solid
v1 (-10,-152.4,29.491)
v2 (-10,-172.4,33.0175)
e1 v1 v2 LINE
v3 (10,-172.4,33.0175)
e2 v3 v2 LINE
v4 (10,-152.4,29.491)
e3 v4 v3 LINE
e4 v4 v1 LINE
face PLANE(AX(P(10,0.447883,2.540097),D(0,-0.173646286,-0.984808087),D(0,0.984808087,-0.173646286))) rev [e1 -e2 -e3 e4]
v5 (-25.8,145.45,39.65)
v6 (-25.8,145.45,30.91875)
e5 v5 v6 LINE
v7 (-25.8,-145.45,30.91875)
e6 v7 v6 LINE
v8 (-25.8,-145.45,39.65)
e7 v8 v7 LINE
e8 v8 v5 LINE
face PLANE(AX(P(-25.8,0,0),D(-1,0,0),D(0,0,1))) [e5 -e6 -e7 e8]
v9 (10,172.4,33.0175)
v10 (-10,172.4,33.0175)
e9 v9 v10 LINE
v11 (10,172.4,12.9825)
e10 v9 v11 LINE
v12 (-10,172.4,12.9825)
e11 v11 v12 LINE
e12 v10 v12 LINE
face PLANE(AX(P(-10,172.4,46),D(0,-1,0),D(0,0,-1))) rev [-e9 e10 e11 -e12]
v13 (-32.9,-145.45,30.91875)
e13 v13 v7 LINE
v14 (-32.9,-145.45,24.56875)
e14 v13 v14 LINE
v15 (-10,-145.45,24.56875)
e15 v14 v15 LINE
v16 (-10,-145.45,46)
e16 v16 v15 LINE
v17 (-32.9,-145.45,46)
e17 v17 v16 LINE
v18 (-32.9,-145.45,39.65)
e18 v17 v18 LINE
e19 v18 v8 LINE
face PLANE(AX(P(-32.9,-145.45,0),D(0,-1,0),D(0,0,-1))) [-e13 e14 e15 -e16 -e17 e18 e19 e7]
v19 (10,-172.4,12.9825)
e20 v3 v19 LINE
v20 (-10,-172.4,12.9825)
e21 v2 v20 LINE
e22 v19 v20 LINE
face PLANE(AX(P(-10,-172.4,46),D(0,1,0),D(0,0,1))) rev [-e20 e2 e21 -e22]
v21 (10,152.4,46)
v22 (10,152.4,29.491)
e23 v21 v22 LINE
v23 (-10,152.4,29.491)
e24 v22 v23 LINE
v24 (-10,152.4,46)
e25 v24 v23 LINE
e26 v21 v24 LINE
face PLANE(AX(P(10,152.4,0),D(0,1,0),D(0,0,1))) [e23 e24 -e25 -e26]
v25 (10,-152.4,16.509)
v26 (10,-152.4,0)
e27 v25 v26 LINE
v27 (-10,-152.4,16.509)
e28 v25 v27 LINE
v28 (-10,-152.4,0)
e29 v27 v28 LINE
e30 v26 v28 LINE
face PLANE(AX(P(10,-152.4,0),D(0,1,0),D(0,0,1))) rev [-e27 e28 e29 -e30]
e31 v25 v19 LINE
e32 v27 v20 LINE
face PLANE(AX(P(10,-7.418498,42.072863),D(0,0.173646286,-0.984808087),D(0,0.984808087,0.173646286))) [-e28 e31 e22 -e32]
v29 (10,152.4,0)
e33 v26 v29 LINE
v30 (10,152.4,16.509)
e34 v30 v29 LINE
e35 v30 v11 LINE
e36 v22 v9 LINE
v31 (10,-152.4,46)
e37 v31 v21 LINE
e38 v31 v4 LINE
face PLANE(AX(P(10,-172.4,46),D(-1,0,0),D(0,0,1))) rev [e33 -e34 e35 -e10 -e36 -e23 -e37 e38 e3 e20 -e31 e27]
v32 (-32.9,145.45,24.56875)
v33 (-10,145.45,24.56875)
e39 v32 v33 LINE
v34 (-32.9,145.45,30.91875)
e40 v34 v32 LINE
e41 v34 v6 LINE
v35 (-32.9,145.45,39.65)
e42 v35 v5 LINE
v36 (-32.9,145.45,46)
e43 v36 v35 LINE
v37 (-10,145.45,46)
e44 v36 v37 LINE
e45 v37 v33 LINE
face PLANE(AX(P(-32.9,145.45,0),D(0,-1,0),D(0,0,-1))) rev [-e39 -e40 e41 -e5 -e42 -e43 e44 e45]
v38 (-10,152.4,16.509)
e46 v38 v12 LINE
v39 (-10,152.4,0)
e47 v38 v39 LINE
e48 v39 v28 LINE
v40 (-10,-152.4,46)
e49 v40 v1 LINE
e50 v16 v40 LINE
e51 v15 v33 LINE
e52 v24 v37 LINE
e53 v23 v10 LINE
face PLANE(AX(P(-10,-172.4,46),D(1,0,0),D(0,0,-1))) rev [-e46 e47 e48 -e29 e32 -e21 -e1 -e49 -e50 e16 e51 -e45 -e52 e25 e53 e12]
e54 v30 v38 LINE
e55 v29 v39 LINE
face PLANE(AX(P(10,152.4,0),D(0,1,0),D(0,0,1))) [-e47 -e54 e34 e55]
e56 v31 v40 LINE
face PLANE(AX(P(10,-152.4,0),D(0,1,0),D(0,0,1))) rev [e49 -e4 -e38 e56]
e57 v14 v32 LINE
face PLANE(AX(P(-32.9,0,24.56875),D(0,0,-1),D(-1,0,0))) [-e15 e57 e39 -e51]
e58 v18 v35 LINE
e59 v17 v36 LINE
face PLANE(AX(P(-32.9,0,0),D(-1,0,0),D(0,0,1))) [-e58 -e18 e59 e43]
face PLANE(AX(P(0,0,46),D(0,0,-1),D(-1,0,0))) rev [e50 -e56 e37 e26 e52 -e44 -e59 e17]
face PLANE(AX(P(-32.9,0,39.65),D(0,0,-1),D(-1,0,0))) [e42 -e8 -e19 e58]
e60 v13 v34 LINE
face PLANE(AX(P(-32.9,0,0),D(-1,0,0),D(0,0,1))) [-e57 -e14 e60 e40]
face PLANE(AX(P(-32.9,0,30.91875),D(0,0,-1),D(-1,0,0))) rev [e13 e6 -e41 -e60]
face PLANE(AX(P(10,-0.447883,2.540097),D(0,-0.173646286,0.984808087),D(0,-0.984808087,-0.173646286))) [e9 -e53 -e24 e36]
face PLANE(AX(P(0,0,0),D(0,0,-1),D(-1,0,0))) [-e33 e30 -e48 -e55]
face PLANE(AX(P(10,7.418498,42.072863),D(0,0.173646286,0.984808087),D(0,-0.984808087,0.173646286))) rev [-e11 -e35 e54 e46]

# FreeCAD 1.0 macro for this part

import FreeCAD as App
import Part
import Sketcher

V = App.Vector
Q = App.Units.Quantity


def add_polygon(sketch, points):
    """Adds a closed chain of lines whose ends are joined by coincident constraints."""
    first, n = sketch.GeometryCount, len(points)
    for a, b in zip(points, points[1:] + points[:1]):
        sketch.addGeometry(Part.LineSegment(App.Vector(*a, 0), App.Vector(*b, 0)), False)
    for i in range(n):
        sketch.addConstraint(Sketcher.Constraint("Coincident", first + i, 2, first + (i + 1) % n, 1))

doc = App.newDocument("Part")
body = doc.addObject("PartDesign::Body", "Body")

sketch1 = doc.addObject("Sketcher::SketchObject", "Sketch")
body.addObject(sketch1)
sketch1.AttachmentSupport = (doc.XY_Plane, [""])
sketch1.MapMode = "FlatFace"
add_polygon(sketch1, [(-10, 172), (-10, -172), (10, -172), (10, 172)])
sketch1.addConstraint([
    Sketcher.Constraint("Vertical", 0),
    Sketcher.Constraint("Horizontal", 1),
    Sketcher.Constraint("Vertical", 2),
    Sketcher.Constraint("Horizontal", 3),
    Sketcher.Constraint("Symmetric", 0, 2, 2, 2, -1, 1),
    Sketcher.Constraint("DistanceX", 1, 1, 1, 2, Q("20 mm")),
    Sketcher.Constraint("DistanceY", 0, 2, 0, 1, Q("344.8 mm")),
])
pad1 = doc.addObject("PartDesign::Pad", "Pad")
body.addObject(pad1)
pad1.Profile = sketch1
pad1.Length = 46

sketch2 = doc.addObject("Sketcher::SketchObject", "Sketch001")
body.addObject(sketch2)
sketch2.AttachmentSupport = (doc.YZ_Plane, [""])
sketch2.MapMode = "FlatFace"
sketch2.AttachmentOffset = App.Placement(V(0, 0, -10), App.Rotation())
add_polygon(sketch2, [(145, 40), (-145, 40), (-145, 46), (145, 46)])
add_polygon(sketch2, [(145, 25), (-145, 25), (-145, 31), (145, 31)])
sketch2.addConstraint([
    Sketcher.Constraint("Horizontal", 0),
    Sketcher.Constraint("Vertical", 1),
    Sketcher.Constraint("Horizontal", 2),
    Sketcher.Constraint("Vertical", 3),
    Sketcher.Constraint("Horizontal", 4),
    Sketcher.Constraint("Vertical", 5),
    Sketcher.Constraint("Horizontal", 6),
    Sketcher.Constraint("Vertical", 7),
    Sketcher.Constraint("Vertical", 1, 2, 4, 2),
    Sketcher.Constraint("Vertical", 3, 2, 6, 2),
    Sketcher.Constraint("Equal", 3, 5),
    Sketcher.Constraint("DistanceX", 0, 2, 0, 1, Q("290.9 mm")),
    Sketcher.Constraint("DistanceY", -1, 1, 1, 2, Q("46 mm")),
    Sketcher.Constraint("DistanceY", 1, 1, 1, 2, Q("6.35 mm")),
    Sketcher.Constraint("DistanceX", 0, 2, -1, 1, Q("145.45 mm")),
    Sketcher.Constraint("DistanceY", -1, 1, 4, 2, Q("24.56875 mm")),
])
pad2 = doc.addObject("PartDesign::Pad", "Pad001")
body.addObject(pad2)
pad2.Profile = sketch2
pad2.Length = 22.9
pad2.Reversed = True

sketch3 = doc.addObject("Sketcher::SketchObject", "Sketch002")
body.addObject(sketch3)
sketch3.AttachmentSupport = (doc.YZ_Plane, [""])
sketch3.MapMode = "FlatFace"
sketch3.AttachmentOffset = App.Placement(V(0, 0, -10), App.Rotation())
add_polygon(sketch3, [(-172, 46), (-152, 46), (-152, 29), (-172, 33)])
add_polygon(sketch3, [(-172, 13), (-152, 17), (-152, 0), (-172, 0)])
add_polygon(sketch3, [(172, 0), (152, 0), (152, 17), (172, 13)])
add_polygon(sketch3, [(152, 29), (152, 46), (172, 46), (172, 33)])
sketch3.addConstraint([
    Sketcher.Constraint("Horizontal", 0),
    Sketcher.Constraint("Vertical", 1),
    Sketcher.Constraint("Vertical", 3),
    Sketcher.Constraint("Vertical", 5),
    Sketcher.Constraint("Horizontal", 6),
    Sketcher.Constraint("Vertical", 7),
    Sketcher.Constraint("Horizontal", 8),
    Sketcher.Constraint("Vertical", 9),
    Sketcher.Constraint("Vertical", 11),
    Sketcher.Constraint("Vertical", 12),
    Sketcher.Constraint("Horizontal", 13),
    Sketcher.Constraint("Vertical", 14),
    Sketcher.Constraint("Symmetric", 5, 2, 8, 2, -1, 1),
    Sketcher.Constraint("Symmetric", 7, 2, 10, 2, -2),
    Sketcher.Constraint("Symmetric", 0, 2, 12, 2, -2),
    Sketcher.Constraint("Symmetric", 2, 2, 14, 2, -2),
    Sketcher.Constraint("PointOnObject", 5, 2, -1),
    Sketcher.Constraint("Parallel", 2, 10),
    Sketcher.Constraint("Parallel", 4, 15),
    Sketcher.Constraint("Horizontal", 4, 2, 9, 2),
    Sketcher.Constraint("Vertical", 1, 2, 4, 2),
    Sketcher.Constraint("Vertical", 3, 2, 6, 2),
    Sketcher.Constraint("Equal", 1, 5),
    Sketcher.Constraint("DistanceX", 0, 1, 0, 2, Q("20 mm")),
    Sketcher.Constraint("DistanceY", -1, 1, 0, 2, Q("46 mm")),
    Sketcher.Constraint("DistanceX", 0, 2, -1, 1, Q("152.4 mm")),
    Sketcher.Constraint("DistanceY", 1, 2, 1, 1, Q("16.509 mm")),
    Sketcher.Constraint("DistanceY", 3, 1, 3, 2, Q("12.9825 mm")),
])
pocket1 = doc.addObject("PartDesign::Pocket", "Pocket")
body.addObject(pocket1)
pocket1.Profile = sketch3
pocket1.Length = 20
pocket1.Reversed = True

sketch4 = doc.addObject("Sketcher::SketchObject", "Sketch003")
body.addObject(sketch4)
sketch4.AttachmentSupport = (doc.YZ_Plane, [""])
sketch4.MapMode = "FlatFace"
sketch4.AttachmentOffset = App.Placement(V(0, 0, -10), App.Rotation())
add_polygon(sketch4, [(145, 31), (-145, 31), (-145, 40), (145, 40)])
sketch4.addConstraint([
    Sketcher.Constraint("Horizontal", 0),
    Sketcher.Constraint("Vertical", 1),
    Sketcher.Constraint("Horizontal", 2),
    Sketcher.Constraint("Vertical", 3),
    Sketcher.Constraint("DistanceX", 0, 2, 0, 1, Q("290.9 mm")),
    Sketcher.Constraint("DistanceX", 0, 2, -1, 1, Q("145.45 mm")),
    Sketcher.Constraint("DistanceY", -1, 1, 1, 2, Q("39.65 mm")),
    Sketcher.Constraint("DistanceY", 1, 1, 1, 2, Q("8.73125 mm")),
])
pad3 = doc.addObject("PartDesign::Pad", "Pad002")
body.addObject(pad3)
pad3.Profile = sketch4
pad3.Length = 15.8
pad3.Reversed = True

doc.recompute()
